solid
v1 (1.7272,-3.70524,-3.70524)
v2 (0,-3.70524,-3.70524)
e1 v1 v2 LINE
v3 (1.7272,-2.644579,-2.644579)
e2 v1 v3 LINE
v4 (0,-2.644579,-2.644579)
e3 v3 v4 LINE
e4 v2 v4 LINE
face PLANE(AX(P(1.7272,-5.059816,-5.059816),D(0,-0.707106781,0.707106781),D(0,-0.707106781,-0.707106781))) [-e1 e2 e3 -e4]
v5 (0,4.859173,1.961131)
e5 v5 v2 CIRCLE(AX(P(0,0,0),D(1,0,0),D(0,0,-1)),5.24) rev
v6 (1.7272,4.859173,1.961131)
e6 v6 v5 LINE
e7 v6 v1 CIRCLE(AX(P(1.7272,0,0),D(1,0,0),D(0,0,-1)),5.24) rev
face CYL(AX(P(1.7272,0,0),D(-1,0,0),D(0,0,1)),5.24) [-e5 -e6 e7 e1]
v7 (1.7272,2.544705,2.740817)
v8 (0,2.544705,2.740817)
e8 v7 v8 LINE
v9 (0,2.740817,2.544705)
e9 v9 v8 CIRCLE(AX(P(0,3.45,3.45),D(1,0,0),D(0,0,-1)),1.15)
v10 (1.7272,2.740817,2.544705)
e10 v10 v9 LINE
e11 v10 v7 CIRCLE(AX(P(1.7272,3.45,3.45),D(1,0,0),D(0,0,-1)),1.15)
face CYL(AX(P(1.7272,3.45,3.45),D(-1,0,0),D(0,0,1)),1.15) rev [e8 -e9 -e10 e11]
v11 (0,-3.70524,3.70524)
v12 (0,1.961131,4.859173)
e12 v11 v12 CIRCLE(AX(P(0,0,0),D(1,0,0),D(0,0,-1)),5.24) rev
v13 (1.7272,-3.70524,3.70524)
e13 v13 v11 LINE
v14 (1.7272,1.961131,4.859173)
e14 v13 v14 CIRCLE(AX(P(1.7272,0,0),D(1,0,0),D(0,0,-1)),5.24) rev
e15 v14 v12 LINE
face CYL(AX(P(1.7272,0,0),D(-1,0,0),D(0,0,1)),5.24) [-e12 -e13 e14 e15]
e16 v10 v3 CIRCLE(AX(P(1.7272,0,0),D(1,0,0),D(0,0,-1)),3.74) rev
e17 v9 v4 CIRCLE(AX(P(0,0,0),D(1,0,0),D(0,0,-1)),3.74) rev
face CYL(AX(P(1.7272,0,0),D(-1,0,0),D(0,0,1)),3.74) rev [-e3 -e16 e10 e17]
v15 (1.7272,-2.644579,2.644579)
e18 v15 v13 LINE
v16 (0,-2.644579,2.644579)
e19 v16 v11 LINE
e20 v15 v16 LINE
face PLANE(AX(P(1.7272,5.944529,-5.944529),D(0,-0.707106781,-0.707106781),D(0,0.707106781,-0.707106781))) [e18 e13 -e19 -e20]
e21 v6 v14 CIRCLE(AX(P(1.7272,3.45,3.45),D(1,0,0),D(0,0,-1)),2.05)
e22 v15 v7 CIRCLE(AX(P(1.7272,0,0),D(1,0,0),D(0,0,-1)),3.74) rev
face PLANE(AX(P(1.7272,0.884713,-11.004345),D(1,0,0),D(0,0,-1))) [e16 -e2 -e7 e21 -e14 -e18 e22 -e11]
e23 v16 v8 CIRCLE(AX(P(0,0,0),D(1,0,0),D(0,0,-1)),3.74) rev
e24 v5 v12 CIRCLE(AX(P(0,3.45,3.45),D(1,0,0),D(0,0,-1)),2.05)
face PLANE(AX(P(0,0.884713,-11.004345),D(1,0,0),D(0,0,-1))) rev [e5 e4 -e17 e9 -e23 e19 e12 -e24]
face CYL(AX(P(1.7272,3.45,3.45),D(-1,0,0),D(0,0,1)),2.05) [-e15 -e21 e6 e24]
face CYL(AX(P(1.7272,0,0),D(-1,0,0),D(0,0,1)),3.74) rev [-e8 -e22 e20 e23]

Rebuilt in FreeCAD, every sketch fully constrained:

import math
import FreeCAD as App
import Part
import Sketcher

doc = App.newDocument("Part")
params = doc.addObject("Spreadsheet::Sheet", "Params")
for row, (alias, value) in enumerate([
    ("sketch1_radius", "3.74 mm"),
    ("sketch1_radius2", "1.15 mm"),
    ("sketch1_radius3", "5.24 mm"),
    ("sketch1_radius4", "2.05 mm"),
    ("pad1_length", "1.7272 mm"),
], start=1):
    params.set(f"A{row}", alias)
    params.set(f"B{row}", "=" + value)
    params.setAlias(f"B{row}", alias)

body = doc.addObject("PartDesign::Body", "Body")

sketch1 = body.newObject("Sketcher::SketchObject", "Sketch")
sketch1.AttachmentSupport = (doc.getObject("YZ_Plane"), [""])
sketch1.MapMode = "FlatFace"
sketch1.addGeometry(Part.LineSegment(App.Vector(-3.71, 3.71, 0), App.Vector(-2.64, 2.64, 0)), False)
sketch1.addGeometry(Part.ArcOfCircle(Part.Circle(App.Vector(0, 0, 0), App.Vector(0, 0, 1), 3.74), math.radians(47), math.radians(135)), False)
sketch1.addGeometry(Part.ArcOfCircle(Part.Circle(App.Vector(3.45, 3.45, 0), App.Vector(0, 0, 1), 1.15), math.radians(-128), math.radians(218)), False)
sketch1.addGeometry(Part.ArcOfCircle(Part.Circle(App.Vector(0, 0, 0), App.Vector(0, 0, 1), 3.74), math.radians(-135), math.radians(43)), False)
sketch1.addGeometry(Part.LineSegment(App.Vector(-2.64, -2.64, 0), App.Vector(-3.71, -3.71, 0)), False)
sketch1.addGeometry(Part.ArcOfCircle(Part.Circle(App.Vector(0, 0, 0), App.Vector(0, 0, 1), 5.24), math.radians(-135), math.radians(22)), False)
sketch1.addGeometry(Part.ArcOfCircle(Part.Circle(App.Vector(3.45, 3.45, 0), App.Vector(0, 0, 1), 2.05), math.radians(-47), math.radians(137)), False)
sketch1.addGeometry(Part.ArcOfCircle(Part.Circle(App.Vector(0, 0, 0), App.Vector(0, 0, 1), 5.24), math.radians(68), math.radians(135)), False)
sketch1.addConstraint(Sketcher.Constraint("Coincident", 0, 2, 1, 2))
sketch1.addConstraint(Sketcher.Constraint("Coincident", 1, 1, 2, 2))
sketch1.addConstraint(Sketcher.Constraint("Coincident", 2, 1, 3, 2))
sketch1.addConstraint(Sketcher.Constraint("Coincident", 3, 1, 4, 1))
sketch1.addConstraint(Sketcher.Constraint("Coincident", 4, 2, 5, 1))
sketch1.addConstraint(Sketcher.Constraint("Coincident", 5, 2, 6, 1))
sketch1.addConstraint(Sketcher.Constraint("Coincident", 6, 2, 7, 1))
sketch1.addConstraint(Sketcher.Constraint("Coincident", 7, 2, 0, 1))
sketch1.addConstraint(Sketcher.Constraint("Coincident", 1, 3, -1, 1))
sketch1.addConstraint(Sketcher.Constraint("Coincident", 3, 3, -1, 1))
sketch1.addConstraint(Sketcher.Constraint("Coincident", 5, 3, -1, 1))
sketch1.addConstraint(Sketcher.Constraint("Coincident", 7, 3, -1, 1))
sketch1.addConstraint(Sketcher.Constraint("Coincident", 6, 3, 2, 3))
sketch1.addConstraint(Sketcher.Constraint("Equal", 1, 3))
sketch1.addConstraint(Sketcher.Constraint("Equal", 5, 7))
sketch1.addConstraint(Sketcher.Constraint("Perpendicular", 0, 4))
sketch1.addConstraint(Sketcher.Constraint("Vertical", 0, 2, 3, 1))
sketch1.addConstraint(Sketcher.Constraint("Vertical", 4, 2, 7, 2))
sketch1.addConstraint(Sketcher.Constraint("Radius", 1, 3.74))
sketch1.addConstraint(Sketcher.Constraint("Radius", 2, 1.15))
sketch1.addConstraint(Sketcher.Constraint("Radius", 5, 5.24))
sketch1.addConstraint(Sketcher.Constraint("Radius", 6, 2.05))
sketch1.addConstraint(Sketcher.Constraint("DistanceX", -1, 1, 2, 3, 3.45))
sketch1.addConstraint(Sketcher.Constraint("DistanceY", -1, 1, 2, 3, 3.45))
sketch1.addConstraint(Sketcher.Constraint("DistanceX", 0, 2, -1, 1, 2.644579))
sketch1.setExpression("Constraints[18]", "Params.sketch1_radius")
sketch1.setExpression("Constraints[19]", "Params.sketch1_radius2")
sketch1.setExpression("Constraints[20]", "Params.sketch1_radius3")
sketch1.setExpression("Constraints[21]", "Params.sketch1_radius4")
pad1 = body.newObject("PartDesign::Pad", "Pad")
pad1.Profile = sketch1
pad1.setExpression("Length", "Params.pad1_length")

doc.recompute()
